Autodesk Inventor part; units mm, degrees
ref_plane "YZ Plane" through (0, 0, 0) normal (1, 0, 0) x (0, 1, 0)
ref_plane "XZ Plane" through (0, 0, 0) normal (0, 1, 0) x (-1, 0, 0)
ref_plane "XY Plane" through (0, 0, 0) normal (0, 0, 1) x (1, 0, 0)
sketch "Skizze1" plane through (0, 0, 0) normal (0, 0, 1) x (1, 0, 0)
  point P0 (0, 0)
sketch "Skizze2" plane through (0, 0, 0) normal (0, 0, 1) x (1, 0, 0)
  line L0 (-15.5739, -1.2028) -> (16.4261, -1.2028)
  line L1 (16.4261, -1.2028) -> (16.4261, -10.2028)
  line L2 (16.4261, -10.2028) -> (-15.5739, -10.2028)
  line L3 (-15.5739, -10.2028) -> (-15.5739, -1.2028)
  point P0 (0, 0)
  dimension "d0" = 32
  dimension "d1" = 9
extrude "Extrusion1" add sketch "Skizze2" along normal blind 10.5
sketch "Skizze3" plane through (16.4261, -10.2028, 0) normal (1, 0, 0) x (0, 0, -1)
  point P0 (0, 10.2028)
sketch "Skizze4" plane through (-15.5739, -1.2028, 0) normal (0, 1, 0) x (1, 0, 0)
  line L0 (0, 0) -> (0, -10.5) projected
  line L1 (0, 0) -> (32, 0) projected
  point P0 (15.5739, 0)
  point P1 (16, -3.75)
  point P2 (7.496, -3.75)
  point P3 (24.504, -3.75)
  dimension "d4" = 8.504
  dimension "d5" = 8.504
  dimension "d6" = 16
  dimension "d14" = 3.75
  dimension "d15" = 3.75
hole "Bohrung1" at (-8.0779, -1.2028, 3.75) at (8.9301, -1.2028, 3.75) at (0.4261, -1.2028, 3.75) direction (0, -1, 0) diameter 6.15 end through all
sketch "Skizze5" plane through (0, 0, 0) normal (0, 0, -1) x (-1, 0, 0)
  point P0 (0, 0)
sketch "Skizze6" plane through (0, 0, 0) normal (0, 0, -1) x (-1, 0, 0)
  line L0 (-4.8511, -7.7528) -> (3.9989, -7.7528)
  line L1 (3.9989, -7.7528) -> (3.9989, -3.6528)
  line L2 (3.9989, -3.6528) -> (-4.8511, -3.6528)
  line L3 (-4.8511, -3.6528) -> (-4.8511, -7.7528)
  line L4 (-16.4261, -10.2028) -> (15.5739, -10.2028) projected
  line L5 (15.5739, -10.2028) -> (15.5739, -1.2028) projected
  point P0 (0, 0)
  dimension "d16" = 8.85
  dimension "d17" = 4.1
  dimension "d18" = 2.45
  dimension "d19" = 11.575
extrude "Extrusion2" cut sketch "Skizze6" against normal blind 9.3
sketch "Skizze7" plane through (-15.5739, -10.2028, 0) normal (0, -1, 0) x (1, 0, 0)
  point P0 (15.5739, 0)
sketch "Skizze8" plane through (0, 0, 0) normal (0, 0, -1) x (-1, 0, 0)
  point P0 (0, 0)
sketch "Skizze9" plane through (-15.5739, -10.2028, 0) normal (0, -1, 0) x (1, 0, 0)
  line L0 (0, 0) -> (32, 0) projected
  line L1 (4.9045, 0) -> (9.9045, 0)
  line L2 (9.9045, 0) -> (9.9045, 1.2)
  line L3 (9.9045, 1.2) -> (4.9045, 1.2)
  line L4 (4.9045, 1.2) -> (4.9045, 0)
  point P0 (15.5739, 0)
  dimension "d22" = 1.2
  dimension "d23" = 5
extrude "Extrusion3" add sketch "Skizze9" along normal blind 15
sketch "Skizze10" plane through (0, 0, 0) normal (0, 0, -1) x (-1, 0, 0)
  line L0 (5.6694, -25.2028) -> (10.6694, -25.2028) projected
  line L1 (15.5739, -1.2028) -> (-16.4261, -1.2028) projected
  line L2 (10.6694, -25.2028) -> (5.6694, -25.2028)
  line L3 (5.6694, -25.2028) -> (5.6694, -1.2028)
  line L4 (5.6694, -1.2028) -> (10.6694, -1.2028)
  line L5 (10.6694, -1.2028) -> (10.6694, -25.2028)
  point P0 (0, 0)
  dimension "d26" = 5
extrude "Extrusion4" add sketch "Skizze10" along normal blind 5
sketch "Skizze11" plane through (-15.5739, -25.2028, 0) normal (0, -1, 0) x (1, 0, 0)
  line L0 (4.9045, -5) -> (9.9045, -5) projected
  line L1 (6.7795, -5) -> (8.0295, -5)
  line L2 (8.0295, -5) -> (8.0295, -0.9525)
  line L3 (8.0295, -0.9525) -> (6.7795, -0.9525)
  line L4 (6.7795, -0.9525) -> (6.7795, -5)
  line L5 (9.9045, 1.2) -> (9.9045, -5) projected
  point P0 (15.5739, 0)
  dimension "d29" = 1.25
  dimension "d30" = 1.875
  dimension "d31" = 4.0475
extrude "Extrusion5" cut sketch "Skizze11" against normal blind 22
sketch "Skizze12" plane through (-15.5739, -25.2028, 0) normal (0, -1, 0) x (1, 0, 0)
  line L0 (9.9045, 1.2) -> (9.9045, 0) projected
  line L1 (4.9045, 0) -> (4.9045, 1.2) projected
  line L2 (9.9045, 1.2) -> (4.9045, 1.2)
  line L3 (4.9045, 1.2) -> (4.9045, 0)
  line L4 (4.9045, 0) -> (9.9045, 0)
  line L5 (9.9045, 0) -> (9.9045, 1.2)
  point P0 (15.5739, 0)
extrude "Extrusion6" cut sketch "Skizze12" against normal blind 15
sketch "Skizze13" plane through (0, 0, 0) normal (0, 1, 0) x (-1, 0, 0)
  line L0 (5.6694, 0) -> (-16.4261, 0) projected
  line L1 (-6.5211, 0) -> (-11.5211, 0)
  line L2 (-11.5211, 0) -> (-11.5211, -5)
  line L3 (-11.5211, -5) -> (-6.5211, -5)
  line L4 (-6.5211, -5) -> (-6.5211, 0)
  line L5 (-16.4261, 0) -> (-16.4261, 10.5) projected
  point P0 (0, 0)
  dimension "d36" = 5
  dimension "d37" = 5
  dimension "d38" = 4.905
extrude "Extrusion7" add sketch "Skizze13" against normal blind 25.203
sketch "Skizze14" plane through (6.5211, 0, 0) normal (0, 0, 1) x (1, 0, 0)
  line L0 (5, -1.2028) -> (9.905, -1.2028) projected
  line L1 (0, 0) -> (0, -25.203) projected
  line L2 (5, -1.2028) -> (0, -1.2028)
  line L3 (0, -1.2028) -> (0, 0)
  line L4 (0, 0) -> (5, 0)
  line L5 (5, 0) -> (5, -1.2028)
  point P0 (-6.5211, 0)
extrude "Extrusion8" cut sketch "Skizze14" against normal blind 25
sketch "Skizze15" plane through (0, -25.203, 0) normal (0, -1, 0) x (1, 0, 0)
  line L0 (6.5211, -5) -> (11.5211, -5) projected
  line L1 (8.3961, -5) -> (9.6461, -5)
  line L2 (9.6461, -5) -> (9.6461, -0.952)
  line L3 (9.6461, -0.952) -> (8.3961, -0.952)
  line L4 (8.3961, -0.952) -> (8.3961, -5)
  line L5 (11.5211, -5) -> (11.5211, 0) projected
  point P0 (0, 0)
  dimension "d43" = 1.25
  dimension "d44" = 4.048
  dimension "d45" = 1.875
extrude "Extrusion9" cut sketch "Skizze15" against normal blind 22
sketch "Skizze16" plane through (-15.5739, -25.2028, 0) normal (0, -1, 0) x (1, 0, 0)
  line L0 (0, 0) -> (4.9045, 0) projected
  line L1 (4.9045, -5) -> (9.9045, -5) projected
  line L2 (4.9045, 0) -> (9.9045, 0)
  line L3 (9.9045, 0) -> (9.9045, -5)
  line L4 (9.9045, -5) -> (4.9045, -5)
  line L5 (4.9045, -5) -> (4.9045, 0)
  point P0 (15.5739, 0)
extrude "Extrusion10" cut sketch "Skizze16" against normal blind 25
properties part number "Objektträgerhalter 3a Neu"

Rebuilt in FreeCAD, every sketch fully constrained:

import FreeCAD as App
import Part
import Sketcher

V = App.Vector


def add_polygon(sketch, points):
    """Adds a closed chain of lines whose ends are joined by coincident constraints."""
    first, n = sketch.GeometryCount, len(points)
    for a, b in zip(points, points[1:] + points[:1]):
        sketch.addGeometry(Part.LineSegment(App.Vector(*a, 0), App.Vector(*b, 0)), False)
    for i in range(n):
        sketch.addConstraint(Sketcher.Constraint("Coincident", first + i, 2, first + (i + 1) % n, 1))

doc = App.newDocument("Part")
body = doc.addObject("PartDesign::Body", "Body")

# Sketch on XY plane
sketch1 = body.newObject("Sketcher::SketchObject", "Sketch")
sketch1.AttachmentSupport = (doc.getObject("XY_Plane"), [""])
sketch1.MapMode = "FlatFace"
add_polygon(sketch1, [(16, -1), (-16, -1), (-16, -10), (16, -10)])  # lines 0-3
sketch1.addConstraint(Sketcher.Constraint("Horizontal", 0))
sketch1.addConstraint(Sketcher.Constraint("Vertical", 1))
sketch1.addConstraint(Sketcher.Constraint("Horizontal", 2))
sketch1.addConstraint(Sketcher.Constraint("Vertical", 3))
sketch1.addConstraint(Sketcher.Constraint("DistanceX", 0, 2, 0, 1, 32.0))
sketch1.addConstraint(Sketcher.Constraint("DistanceY", 1, 2, 1, 1, 9.0))
sketch1.addConstraint(Sketcher.Constraint("DistanceX", 0, 2, -1, 1, 15.574))
sketch1.addConstraint(Sketcher.Constraint("DistanceY", 0, 2, -1, 1, 1.2028))
pad1 = body.newObject("PartDesign::Pad", "Pad")
pad1.Profile = sketch1
pad1.Length = 10.5

# Sketch on XZ plane
sketch2 = body.newObject("Sketcher::SketchObject", "Sketch001")
sketch2.AttachmentSupport = (doc.getObject("XZ_Plane"), [""])
sketch2.MapMode = "FlatFace"
sketch2.AttachmentOffset = App.Placement(V(0, 0, 1.2028), App.Rotation())
sketch2.addGeometry(Part.Circle(V(-8.1, 3.8, 0), V(0, 0, 1), 3.1), False)
sketch2.addGeometry(Part.Circle(V(8.9, 3.8, 0), V(0, 0, 1), 3.1), False)
sketch2.addGeometry(Part.Circle(V(0.4, 3.8, 0), V(0, 0, 1), 3.1), False)
sketch2.addConstraint(Sketcher.Constraint("Equal", 0, 1))
sketch2.addConstraint(Sketcher.Constraint("Equal", 1, 2))
sketch2.addConstraint(Sketcher.Constraint("Horizontal", 0, 3, 1, 3))
sketch2.addConstraint(Sketcher.Constraint("Horizontal", 1, 3, 2, 3))
sketch2.addConstraint(Sketcher.Constraint("Diameter", 0, 6.15))
sketch2.addConstraint(Sketcher.Constraint("DistanceY", -1, 1, 0, 3, 3.75))
sketch2.addConstraint(Sketcher.Constraint("DistanceX", -1, 1, 1, 3, 8.93))
sketch2.addConstraint(Sketcher.Constraint("DistanceX", 0, 3, -1, 1, 8.078))
sketch2.addConstraint(Sketcher.Constraint("DistanceX", -1, 1, 2, 3, 0.426))
doc.recompute()
hole = body.newObject("PartDesign::Hole", "Hole")
hole.Profile = sketch2
hole.ThreadType = "None"
hole.Diameter = 6.15
hole.DepthType = "ThroughAll"
hole.Reversed = True

# Sketch on XY plane
sketch3 = body.newObject("Sketcher::SketchObject", "Sketch002")
sketch3.AttachmentSupport = (doc.getObject("XY_Plane"), [""])
sketch3.MapMode = "FlatFace"
add_polygon(sketch3, [(4.9, -3.7), (4.9, -7.8), (-4, -7.8), (-4, -3.7)])  # lines 0-3
sketch3.addConstraint(Sketcher.Constraint("Vertical", 0))
sketch3.addConstraint(Sketcher.Constraint("Horizontal", 1))
sketch3.addConstraint(Sketcher.Constraint("Vertical", 2))
sketch3.addConstraint(Sketcher.Constraint("Horizontal", 3))
sketch3.addConstraint(Sketcher.Constraint("DistanceY", 0, 2, 0, 1, 4.1))
sketch3.addConstraint(Sketcher.Constraint("DistanceX", 1, 2, 1, 1, 8.85))
sketch3.addConstraint(Sketcher.Constraint("DistanceX", -1, 1, 0, 2, 4.851))
sketch3.addConstraint(Sketcher.Constraint("DistanceY", 0, 2, -1, 1, 7.7528))
pocket1 = body.newObject("PartDesign::Pocket", "Pocket")
pocket1.Profile = sketch3
pocket1.Length = 9.3
pocket1.Reversed = True

# Sketch on XZ plane
sketch4 = body.newObject("Sketcher::SketchObject", "Sketch003")
sketch4.AttachmentSupport = (doc.getObject("XZ_Plane"), [""])
sketch4.MapMode = "FlatFace"
sketch4.AttachmentOffset = App.Placement(V(0, 0, 10.2028), App.Rotation())
add_polygon(sketch4, [(-10.7, 1.2), (-10.7, 0), (-5.7, 0), (-5.7, 1.2)])  # lines 0-3
sketch4.addConstraint(Sketcher.Constraint("Vertical", 0))
sketch4.addConstraint(Sketcher.Constraint("Horizontal", 1))
sketch4.addConstraint(Sketcher.Constraint("Vertical", 2))
sketch4.addConstraint(Sketcher.Constraint("Horizontal", 3))
sketch4.addConstraint(Sketcher.Constraint("PointOnObject", 0, 2, -1))
sketch4.addConstraint(Sketcher.Constraint("DistanceX", 1, 1, 1, 2, 5.0))
sketch4.addConstraint(Sketcher.Constraint("DistanceY", 0, 2, 0, 1, 1.2))
sketch4.addConstraint(Sketcher.Constraint("DistanceX", 0, 2, -1, 1, 10.6694))
pad2 = body.newObject("PartDesign::Pad", "Pad001")
pad2.Profile = sketch4
pad2.Length = 15

# Sketch on XY plane
sketch5 = body.newObject("Sketcher::SketchObject", "Sketch004")
sketch5.AttachmentSupport = (doc.getObject("XY_Plane"), [""])
sketch5.MapMode = "FlatFace"
add_polygon(sketch5, [(-5.7, -1.2), (-5.7, -25.2), (-10.7, -25.2), (-10.7, -1.2)])  # lines 0-3
sketch5.addConstraint(Sketcher.Constraint("Vertical", 0))
sketch5.addConstraint(Sketcher.Constraint("Horizontal", 1))
sketch5.addConstraint(Sketcher.Constraint("Vertical", 2))
sketch5.addConstraint(Sketcher.Constraint("Horizontal", 3))
sketch5.addConstraint(Sketcher.Constraint("DistanceX", 1, 2, 1, 1, 5.0))
sketch5.addConstraint(Sketcher.Constraint("DistanceY", 0, 2, 0, 1, 24.0))
sketch5.addConstraint(Sketcher.Constraint("DistanceX", 0, 2, -1, 1, 5.6694))
sketch5.addConstraint(Sketcher.Constraint("DistanceY", 0, 2, -1, 1, 25.2028))
pad3 = body.newObject("PartDesign::Pad", "Pad002")
pad3.Profile = sketch5
pad3.Length = 5
pad3.Reversed = True

# Sketch on XZ plane
sketch6 = body.newObject("Sketcher::SketchObject", "Sketch005")
sketch6.AttachmentSupport = (doc.getObject("XZ_Plane"), [""])
sketch6.MapMode = "FlatFace"
sketch6.AttachmentOffset = App.Placement(V(0, 0, 25.2028), App.Rotation())
add_polygon(sketch6, [(-8.8, -1), (-8.8, -5), (-7.5, -5), (-7.5, -1)])  # lines 0-3
sketch6.addConstraint(Sketcher.Constraint("Vertical", 0))
sketch6.addConstraint(Sketcher.Constraint("Horizontal", 1))
sketch6.addConstraint(Sketcher.Constraint("Vertical", 2))
sketch6.addConstraint(Sketcher.Constraint("Horizontal", 3))
sketch6.addConstraint(Sketcher.Constraint("DistanceX", 1, 1, 1, 2, 1.25))
sketch6.addConstraint(Sketcher.Constraint("DistanceY", 0, 2, 0, 1, 4.0475))
sketch6.addConstraint(Sketcher.Constraint("DistanceY", 0, 2, -1, 1, 5.0))
sketch6.addConstraint(Sketcher.Constraint("DistanceX", 0, 2, -1, 1, 8.7944))
pocket2 = body.newObject("PartDesign::Pocket", "Pocket001")
pocket2.Profile = sketch6
pocket2.Length = 22

# Sketch on XZ plane
sketch7 = body.newObject("Sketcher::SketchObject", "Sketch006")
sketch7.AttachmentSupport = (doc.getObject("XZ_Plane"), [""])
sketch7.MapMode = "FlatFace"
sketch7.AttachmentOffset = App.Placement(V(0, 0, 25.2028), App.Rotation())
add_polygon(sketch7, [(-5.7, 0), (-5.7, 1.2), (-10.7, 1.2), (-10.7, 0)])  # lines 0-3
sketch7.addConstraint(Sketcher.Constraint("Vertical", 0))
sketch7.addConstraint(Sketcher.Constraint("Horizontal", 1))
sketch7.addConstraint(Sketcher.Constraint("Vertical", 2))
sketch7.addConstraint(Sketcher.Constraint("Horizontal", 3))
sketch7.addConstraint(Sketcher.Constraint("PointOnObject", 2, 2, -1))
sketch7.addConstraint(Sketcher.Constraint("DistanceX", 1, 2, 1, 1, 5.0))
sketch7.addConstraint(Sketcher.Constraint("DistanceY", 0, 1, 0, 2, 1.2))
sketch7.addConstraint(Sketcher.Constraint("DistanceX", 0, 2, -1, 1, 5.6694))
pocket3 = body.newObject("PartDesign::Pocket", "Pocket002")
pocket3.Profile = sketch7
pocket3.Length = 15

# Sketch on XZ plane
sketch8 = body.newObject("Sketcher::SketchObject", "Sketch007")
sketch8.AttachmentSupport = (doc.getObject("XZ_Plane"), [""])
sketch8.MapMode = "FlatFace"
add_polygon(sketch8, [(7, -5), (7, 0), (12, 0), (12, -5)])  # lines 0-3
sketch8.addConstraint(Sketcher.Constraint("Vertical", 0))
sketch8.addConstraint(Sketcher.Constraint("Horizontal", 1))
sketch8.addConstraint(Sketcher.Constraint("Vertical", 2))
sketch8.addConstraint(Sketcher.Constraint("Horizontal", 3))
sketch8.addConstraint(Sketcher.Constraint("PointOnObject", 0, 2, -1))
sketch8.addConstraint(Sketcher.Constraint("Equal", 3, 0))
sketch8.addConstraint(Sketcher.Constraint("DistanceX", 1, 1, 1, 2, 5.0))
sketch8.addConstraint(Sketcher.Constraint("DistanceX", -1, 1, 0, 2, 6.521))
pad4 = body.newObject("PartDesign::Pad", "Pad003")
pad4.Profile = sketch8
pad4.Length = 25.203

# Sketch on XY plane
sketch9 = body.newObject("Sketcher::SketchObject", "Sketch008")
sketch9.AttachmentSupport = (doc.getObject("XY_Plane"), [""])
sketch9.MapMode = "FlatFace"
add_polygon(sketch9, [(11.5, 0), (6.5, 0), (6.5, -1.2), (11.5, -1.2)])  # lines 0-3
sketch9.addConstraint(Sketcher.Constraint("Horizontal", 0))
sketch9.addConstraint(Sketcher.Constraint("Vertical", 1))
sketch9.addConstraint(Sketcher.Constraint("Horizontal", 2))
sketch9.addConstraint(Sketcher.Constraint("Vertical", 3))
sketch9.addConstraint(Sketcher.Constraint("PointOnObject", 0, 2, -1))
sketch9.addConstraint(Sketcher.Constraint("DistanceX", 0, 2, 0, 1, 5.0))
sketch9.addConstraint(Sketcher.Constraint("DistanceY", 1, 2, 1, 1, 1.2028))
sketch9.addConstraint(Sketcher.Constraint("DistanceX", -1, 1, 0, 2, 6.521))
pocket4 = body.newObject("PartDesign::Pocket", "Pocket003")
pocket4.Profile = sketch9
pocket4.Length = 25

# Sketch on XZ plane
sketch10 = body.newObject("Sketcher::SketchObject", "Sketch009")
sketch10.AttachmentSupport = (doc.getObject("XZ_Plane"), [""])
sketch10.MapMode = "FlatFace"
sketch10.AttachmentOffset = App.Placement(V(0, 0, 25.203), App.Rotation())
add_polygon(sketch10, [(8.4, -1), (8.4, -5), (9.6, -5), (9.6, -1)])  # lines 0-3
sketch10.addConstraint(Sketcher.Constraint("Vertical", 0))
sketch10.addConstraint(Sketcher.Constraint("Horizontal", 1))
sketch10.addConstraint(Sketcher.Constraint("Vertical", 2))
sketch10.addConstraint(Sketcher.Constraint("Horizontal", 3))
sketch10.addConstraint(Sketcher.Constraint("DistanceX", 1, 1, 1, 2, 1.25))
sketch10.addConstraint(Sketcher.Constraint("DistanceY", 0, 2, 0, 1, 4.048))
sketch10.addConstraint(Sketcher.Constraint("DistanceY", 0, 2, -1, 1, 5.0))
sketch10.addConstraint(Sketcher.Constraint("DistanceX", -1, 1, 0, 2, 8.396))
pocket5 = body.newObject("PartDesign::Pocket", "Pocket004")
pocket5.Profile = sketch10
pocket5.Length = 22

# Sketch on XZ plane
sketch11 = body.newObject("Sketcher::SketchObject", "Sketch010")
sketch11.AttachmentSupport = (doc.getObject("XZ_Plane"), [""])
sketch11.MapMode = "FlatFace"
sketch11.AttachmentOffset = App.Placement(V(0, 0, 25.2028), App.Rotation())
add_polygon(sketch11, [(-10.7, 0), (-10.7, -5), (-5.7, -5), (-5.7, 0)])  # lines 0-3
sketch11.addConstraint(Sketcher.Constraint("Vertical", 0))
sketch11.addConstraint(Sketcher.Constraint("Horizontal", 1))
sketch11.addConstraint(Sketcher.Constraint("Vertical", 2))
sketch11.addConstraint(Sketcher.Constraint("Horizontal", 3))
sketch11.addConstraint(Sketcher.Constraint("PointOnObject", 2, 2, -1))
sketch11.addConstraint(Sketcher.Constraint("Equal", 3, 0))
sketch11.addConstraint(Sketcher.Constraint("DistanceX", 1, 1, 1, 2, 5.0))
sketch11.addConstraint(Sketcher.Constraint("DistanceX", 0, 2, -1, 1, 10.6694))
pocket6 = body.newObject("PartDesign::Pocket", "Pocket005")
pocket6.Profile = sketch11
pocket6.Length = 25

doc.recompute()
